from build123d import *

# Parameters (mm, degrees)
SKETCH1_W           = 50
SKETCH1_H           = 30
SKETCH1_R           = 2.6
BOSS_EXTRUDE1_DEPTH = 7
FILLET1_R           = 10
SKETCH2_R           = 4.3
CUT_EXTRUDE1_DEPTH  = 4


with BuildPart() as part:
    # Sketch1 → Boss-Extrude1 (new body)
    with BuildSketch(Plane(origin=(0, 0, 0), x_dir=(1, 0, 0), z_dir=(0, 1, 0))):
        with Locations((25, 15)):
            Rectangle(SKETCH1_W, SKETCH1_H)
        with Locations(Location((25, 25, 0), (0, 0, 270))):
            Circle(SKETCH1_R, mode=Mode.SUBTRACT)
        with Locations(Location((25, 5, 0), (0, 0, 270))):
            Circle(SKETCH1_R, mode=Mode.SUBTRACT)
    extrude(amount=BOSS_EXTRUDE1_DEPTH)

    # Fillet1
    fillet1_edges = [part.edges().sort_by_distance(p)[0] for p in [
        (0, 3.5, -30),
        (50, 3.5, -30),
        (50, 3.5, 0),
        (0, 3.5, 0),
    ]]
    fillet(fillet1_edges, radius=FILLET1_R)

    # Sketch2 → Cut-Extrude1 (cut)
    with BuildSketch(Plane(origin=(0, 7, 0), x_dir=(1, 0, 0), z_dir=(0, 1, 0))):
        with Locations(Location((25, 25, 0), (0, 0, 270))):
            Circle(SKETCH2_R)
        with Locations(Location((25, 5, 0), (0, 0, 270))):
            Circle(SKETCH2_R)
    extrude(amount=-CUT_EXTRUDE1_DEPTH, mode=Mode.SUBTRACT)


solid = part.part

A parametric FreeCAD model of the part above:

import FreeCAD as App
import Part
import Sketcher

V = App.Vector


def edges_at(feature, points):
    """Names of the edges that pass closest to the given points."""
    edges = feature.Shape.Edges
    near = lambda p: min(range(len(edges)), key=lambda i: edges[i].distToShape(Part.Vertex(*p))[0])
    return sorted({f"Edge{near(p) + 1}" for p in points})


def add_polygon(sketch, points):
    """Adds a closed chain of lines whose ends are joined by coincident constraints."""
    first, n = sketch.GeometryCount, len(points)
    for a, b in zip(points, points[1:] + points[:1]):
        sketch.addGeometry(Part.LineSegment(App.Vector(*a, 0), App.Vector(*b, 0)), False)
    for i in range(n):
        sketch.addConstraint(Sketcher.Constraint("Coincident", first + i, 2, first + (i + 1) % n, 1))

doc = App.newDocument("Part")
body = doc.addObject("PartDesign::Body", "Body")

sketch1 = body.newObject("Sketcher::SketchObject", "Sketch")
sketch1.AttachmentSupport = (doc.getObject("XZ_Plane"), [""])
sketch1.MapMode = "FlatFace"
add_polygon(sketch1, [(0, -30), (0, 0), (50, 0), (50, -30)])
sketch1.addGeometry(Part.Circle(V(25, -5, 0), V(0, 0, 1), 2.6), False)
sketch1.addGeometry(Part.Circle(V(25, -25, 0), V(0, 0, 1), 2.6), False)
sketch1.addConstraint([
    Sketcher.Constraint("Vertical", 0),
    Sketcher.Constraint("Horizontal", 1),
    Sketcher.Constraint("Vertical", 2),
    Sketcher.Constraint("Horizontal", 3),
    Sketcher.Constraint("Coincident", 0, 2, -1, 1),
    Sketcher.Constraint("Equal", 4, 5),
    Sketcher.Constraint("Vertical", 4, 3, 5, 3),
    Sketcher.Constraint("Diameter", 4, 5.2),
    Sketcher.Constraint("DistanceX", 1, 1, 1, 2, 50.0),
    Sketcher.Constraint("DistanceY", 0, 1, 0, 2, 30.0),
    Sketcher.Constraint("DistanceX", -1, 1, 4, 3, 25.0),
    Sketcher.Constraint("DistanceY", 4, 3, -1, 1, 5.0),
    Sketcher.Constraint("DistanceY", 5, 3, -1, 1, 25.0),
])
pad1 = body.newObject("PartDesign::Pad", "Pad")
pad1.Profile = sketch1
pad1.Length = 7
pad1.Reversed = True
doc.recompute()

fillet = body.newObject("PartDesign::Fillet", "Fillet")
fillet.Base = (pad1, edges_at(pad1, [
    (0, 3.5, -30),
    (50, 3.5, -30),
    (50, 3.5, 0),
    (0, 3.5, 0),
]))
fillet.Radius = 10

sketch2 = body.newObject("Sketcher::SketchObject", "Sketch001")
sketch2.AttachmentSupport = (doc.getObject("XZ_Plane"), [""])
sketch2.MapMode = "FlatFace"
sketch2.AttachmentOffset = App.Placement(V(0, 0, -7), App.Rotation())
sketch2.addGeometry([
    Part.Circle(V(25, -25, 0), V(0, 0, 1), 4.3),
    Part.Circle(V(25, -5, 0), V(0, 0, 1), 4.3),
], False)
sketch2.addConstraint([
    Sketcher.Constraint("Equal", 0, 1),
    Sketcher.Constraint("Vertical", 0, 3, 1, 3),
    Sketcher.Constraint("Diameter", 0, 8.6),
    Sketcher.Constraint("DistanceX", -1, 1, 0, 3, 25.0),
    Sketcher.Constraint("DistanceY", 0, 3, -1, 1, 25.0),
    Sketcher.Constraint("DistanceY", 1, 3, -1, 1, 5.0),
])
pocket1 = body.newObject("PartDesign::Pocket", "Pocket")
pocket1.Profile = sketch2
pocket1.Length = 4
pocket1.Reversed = True

doc.recompute()
